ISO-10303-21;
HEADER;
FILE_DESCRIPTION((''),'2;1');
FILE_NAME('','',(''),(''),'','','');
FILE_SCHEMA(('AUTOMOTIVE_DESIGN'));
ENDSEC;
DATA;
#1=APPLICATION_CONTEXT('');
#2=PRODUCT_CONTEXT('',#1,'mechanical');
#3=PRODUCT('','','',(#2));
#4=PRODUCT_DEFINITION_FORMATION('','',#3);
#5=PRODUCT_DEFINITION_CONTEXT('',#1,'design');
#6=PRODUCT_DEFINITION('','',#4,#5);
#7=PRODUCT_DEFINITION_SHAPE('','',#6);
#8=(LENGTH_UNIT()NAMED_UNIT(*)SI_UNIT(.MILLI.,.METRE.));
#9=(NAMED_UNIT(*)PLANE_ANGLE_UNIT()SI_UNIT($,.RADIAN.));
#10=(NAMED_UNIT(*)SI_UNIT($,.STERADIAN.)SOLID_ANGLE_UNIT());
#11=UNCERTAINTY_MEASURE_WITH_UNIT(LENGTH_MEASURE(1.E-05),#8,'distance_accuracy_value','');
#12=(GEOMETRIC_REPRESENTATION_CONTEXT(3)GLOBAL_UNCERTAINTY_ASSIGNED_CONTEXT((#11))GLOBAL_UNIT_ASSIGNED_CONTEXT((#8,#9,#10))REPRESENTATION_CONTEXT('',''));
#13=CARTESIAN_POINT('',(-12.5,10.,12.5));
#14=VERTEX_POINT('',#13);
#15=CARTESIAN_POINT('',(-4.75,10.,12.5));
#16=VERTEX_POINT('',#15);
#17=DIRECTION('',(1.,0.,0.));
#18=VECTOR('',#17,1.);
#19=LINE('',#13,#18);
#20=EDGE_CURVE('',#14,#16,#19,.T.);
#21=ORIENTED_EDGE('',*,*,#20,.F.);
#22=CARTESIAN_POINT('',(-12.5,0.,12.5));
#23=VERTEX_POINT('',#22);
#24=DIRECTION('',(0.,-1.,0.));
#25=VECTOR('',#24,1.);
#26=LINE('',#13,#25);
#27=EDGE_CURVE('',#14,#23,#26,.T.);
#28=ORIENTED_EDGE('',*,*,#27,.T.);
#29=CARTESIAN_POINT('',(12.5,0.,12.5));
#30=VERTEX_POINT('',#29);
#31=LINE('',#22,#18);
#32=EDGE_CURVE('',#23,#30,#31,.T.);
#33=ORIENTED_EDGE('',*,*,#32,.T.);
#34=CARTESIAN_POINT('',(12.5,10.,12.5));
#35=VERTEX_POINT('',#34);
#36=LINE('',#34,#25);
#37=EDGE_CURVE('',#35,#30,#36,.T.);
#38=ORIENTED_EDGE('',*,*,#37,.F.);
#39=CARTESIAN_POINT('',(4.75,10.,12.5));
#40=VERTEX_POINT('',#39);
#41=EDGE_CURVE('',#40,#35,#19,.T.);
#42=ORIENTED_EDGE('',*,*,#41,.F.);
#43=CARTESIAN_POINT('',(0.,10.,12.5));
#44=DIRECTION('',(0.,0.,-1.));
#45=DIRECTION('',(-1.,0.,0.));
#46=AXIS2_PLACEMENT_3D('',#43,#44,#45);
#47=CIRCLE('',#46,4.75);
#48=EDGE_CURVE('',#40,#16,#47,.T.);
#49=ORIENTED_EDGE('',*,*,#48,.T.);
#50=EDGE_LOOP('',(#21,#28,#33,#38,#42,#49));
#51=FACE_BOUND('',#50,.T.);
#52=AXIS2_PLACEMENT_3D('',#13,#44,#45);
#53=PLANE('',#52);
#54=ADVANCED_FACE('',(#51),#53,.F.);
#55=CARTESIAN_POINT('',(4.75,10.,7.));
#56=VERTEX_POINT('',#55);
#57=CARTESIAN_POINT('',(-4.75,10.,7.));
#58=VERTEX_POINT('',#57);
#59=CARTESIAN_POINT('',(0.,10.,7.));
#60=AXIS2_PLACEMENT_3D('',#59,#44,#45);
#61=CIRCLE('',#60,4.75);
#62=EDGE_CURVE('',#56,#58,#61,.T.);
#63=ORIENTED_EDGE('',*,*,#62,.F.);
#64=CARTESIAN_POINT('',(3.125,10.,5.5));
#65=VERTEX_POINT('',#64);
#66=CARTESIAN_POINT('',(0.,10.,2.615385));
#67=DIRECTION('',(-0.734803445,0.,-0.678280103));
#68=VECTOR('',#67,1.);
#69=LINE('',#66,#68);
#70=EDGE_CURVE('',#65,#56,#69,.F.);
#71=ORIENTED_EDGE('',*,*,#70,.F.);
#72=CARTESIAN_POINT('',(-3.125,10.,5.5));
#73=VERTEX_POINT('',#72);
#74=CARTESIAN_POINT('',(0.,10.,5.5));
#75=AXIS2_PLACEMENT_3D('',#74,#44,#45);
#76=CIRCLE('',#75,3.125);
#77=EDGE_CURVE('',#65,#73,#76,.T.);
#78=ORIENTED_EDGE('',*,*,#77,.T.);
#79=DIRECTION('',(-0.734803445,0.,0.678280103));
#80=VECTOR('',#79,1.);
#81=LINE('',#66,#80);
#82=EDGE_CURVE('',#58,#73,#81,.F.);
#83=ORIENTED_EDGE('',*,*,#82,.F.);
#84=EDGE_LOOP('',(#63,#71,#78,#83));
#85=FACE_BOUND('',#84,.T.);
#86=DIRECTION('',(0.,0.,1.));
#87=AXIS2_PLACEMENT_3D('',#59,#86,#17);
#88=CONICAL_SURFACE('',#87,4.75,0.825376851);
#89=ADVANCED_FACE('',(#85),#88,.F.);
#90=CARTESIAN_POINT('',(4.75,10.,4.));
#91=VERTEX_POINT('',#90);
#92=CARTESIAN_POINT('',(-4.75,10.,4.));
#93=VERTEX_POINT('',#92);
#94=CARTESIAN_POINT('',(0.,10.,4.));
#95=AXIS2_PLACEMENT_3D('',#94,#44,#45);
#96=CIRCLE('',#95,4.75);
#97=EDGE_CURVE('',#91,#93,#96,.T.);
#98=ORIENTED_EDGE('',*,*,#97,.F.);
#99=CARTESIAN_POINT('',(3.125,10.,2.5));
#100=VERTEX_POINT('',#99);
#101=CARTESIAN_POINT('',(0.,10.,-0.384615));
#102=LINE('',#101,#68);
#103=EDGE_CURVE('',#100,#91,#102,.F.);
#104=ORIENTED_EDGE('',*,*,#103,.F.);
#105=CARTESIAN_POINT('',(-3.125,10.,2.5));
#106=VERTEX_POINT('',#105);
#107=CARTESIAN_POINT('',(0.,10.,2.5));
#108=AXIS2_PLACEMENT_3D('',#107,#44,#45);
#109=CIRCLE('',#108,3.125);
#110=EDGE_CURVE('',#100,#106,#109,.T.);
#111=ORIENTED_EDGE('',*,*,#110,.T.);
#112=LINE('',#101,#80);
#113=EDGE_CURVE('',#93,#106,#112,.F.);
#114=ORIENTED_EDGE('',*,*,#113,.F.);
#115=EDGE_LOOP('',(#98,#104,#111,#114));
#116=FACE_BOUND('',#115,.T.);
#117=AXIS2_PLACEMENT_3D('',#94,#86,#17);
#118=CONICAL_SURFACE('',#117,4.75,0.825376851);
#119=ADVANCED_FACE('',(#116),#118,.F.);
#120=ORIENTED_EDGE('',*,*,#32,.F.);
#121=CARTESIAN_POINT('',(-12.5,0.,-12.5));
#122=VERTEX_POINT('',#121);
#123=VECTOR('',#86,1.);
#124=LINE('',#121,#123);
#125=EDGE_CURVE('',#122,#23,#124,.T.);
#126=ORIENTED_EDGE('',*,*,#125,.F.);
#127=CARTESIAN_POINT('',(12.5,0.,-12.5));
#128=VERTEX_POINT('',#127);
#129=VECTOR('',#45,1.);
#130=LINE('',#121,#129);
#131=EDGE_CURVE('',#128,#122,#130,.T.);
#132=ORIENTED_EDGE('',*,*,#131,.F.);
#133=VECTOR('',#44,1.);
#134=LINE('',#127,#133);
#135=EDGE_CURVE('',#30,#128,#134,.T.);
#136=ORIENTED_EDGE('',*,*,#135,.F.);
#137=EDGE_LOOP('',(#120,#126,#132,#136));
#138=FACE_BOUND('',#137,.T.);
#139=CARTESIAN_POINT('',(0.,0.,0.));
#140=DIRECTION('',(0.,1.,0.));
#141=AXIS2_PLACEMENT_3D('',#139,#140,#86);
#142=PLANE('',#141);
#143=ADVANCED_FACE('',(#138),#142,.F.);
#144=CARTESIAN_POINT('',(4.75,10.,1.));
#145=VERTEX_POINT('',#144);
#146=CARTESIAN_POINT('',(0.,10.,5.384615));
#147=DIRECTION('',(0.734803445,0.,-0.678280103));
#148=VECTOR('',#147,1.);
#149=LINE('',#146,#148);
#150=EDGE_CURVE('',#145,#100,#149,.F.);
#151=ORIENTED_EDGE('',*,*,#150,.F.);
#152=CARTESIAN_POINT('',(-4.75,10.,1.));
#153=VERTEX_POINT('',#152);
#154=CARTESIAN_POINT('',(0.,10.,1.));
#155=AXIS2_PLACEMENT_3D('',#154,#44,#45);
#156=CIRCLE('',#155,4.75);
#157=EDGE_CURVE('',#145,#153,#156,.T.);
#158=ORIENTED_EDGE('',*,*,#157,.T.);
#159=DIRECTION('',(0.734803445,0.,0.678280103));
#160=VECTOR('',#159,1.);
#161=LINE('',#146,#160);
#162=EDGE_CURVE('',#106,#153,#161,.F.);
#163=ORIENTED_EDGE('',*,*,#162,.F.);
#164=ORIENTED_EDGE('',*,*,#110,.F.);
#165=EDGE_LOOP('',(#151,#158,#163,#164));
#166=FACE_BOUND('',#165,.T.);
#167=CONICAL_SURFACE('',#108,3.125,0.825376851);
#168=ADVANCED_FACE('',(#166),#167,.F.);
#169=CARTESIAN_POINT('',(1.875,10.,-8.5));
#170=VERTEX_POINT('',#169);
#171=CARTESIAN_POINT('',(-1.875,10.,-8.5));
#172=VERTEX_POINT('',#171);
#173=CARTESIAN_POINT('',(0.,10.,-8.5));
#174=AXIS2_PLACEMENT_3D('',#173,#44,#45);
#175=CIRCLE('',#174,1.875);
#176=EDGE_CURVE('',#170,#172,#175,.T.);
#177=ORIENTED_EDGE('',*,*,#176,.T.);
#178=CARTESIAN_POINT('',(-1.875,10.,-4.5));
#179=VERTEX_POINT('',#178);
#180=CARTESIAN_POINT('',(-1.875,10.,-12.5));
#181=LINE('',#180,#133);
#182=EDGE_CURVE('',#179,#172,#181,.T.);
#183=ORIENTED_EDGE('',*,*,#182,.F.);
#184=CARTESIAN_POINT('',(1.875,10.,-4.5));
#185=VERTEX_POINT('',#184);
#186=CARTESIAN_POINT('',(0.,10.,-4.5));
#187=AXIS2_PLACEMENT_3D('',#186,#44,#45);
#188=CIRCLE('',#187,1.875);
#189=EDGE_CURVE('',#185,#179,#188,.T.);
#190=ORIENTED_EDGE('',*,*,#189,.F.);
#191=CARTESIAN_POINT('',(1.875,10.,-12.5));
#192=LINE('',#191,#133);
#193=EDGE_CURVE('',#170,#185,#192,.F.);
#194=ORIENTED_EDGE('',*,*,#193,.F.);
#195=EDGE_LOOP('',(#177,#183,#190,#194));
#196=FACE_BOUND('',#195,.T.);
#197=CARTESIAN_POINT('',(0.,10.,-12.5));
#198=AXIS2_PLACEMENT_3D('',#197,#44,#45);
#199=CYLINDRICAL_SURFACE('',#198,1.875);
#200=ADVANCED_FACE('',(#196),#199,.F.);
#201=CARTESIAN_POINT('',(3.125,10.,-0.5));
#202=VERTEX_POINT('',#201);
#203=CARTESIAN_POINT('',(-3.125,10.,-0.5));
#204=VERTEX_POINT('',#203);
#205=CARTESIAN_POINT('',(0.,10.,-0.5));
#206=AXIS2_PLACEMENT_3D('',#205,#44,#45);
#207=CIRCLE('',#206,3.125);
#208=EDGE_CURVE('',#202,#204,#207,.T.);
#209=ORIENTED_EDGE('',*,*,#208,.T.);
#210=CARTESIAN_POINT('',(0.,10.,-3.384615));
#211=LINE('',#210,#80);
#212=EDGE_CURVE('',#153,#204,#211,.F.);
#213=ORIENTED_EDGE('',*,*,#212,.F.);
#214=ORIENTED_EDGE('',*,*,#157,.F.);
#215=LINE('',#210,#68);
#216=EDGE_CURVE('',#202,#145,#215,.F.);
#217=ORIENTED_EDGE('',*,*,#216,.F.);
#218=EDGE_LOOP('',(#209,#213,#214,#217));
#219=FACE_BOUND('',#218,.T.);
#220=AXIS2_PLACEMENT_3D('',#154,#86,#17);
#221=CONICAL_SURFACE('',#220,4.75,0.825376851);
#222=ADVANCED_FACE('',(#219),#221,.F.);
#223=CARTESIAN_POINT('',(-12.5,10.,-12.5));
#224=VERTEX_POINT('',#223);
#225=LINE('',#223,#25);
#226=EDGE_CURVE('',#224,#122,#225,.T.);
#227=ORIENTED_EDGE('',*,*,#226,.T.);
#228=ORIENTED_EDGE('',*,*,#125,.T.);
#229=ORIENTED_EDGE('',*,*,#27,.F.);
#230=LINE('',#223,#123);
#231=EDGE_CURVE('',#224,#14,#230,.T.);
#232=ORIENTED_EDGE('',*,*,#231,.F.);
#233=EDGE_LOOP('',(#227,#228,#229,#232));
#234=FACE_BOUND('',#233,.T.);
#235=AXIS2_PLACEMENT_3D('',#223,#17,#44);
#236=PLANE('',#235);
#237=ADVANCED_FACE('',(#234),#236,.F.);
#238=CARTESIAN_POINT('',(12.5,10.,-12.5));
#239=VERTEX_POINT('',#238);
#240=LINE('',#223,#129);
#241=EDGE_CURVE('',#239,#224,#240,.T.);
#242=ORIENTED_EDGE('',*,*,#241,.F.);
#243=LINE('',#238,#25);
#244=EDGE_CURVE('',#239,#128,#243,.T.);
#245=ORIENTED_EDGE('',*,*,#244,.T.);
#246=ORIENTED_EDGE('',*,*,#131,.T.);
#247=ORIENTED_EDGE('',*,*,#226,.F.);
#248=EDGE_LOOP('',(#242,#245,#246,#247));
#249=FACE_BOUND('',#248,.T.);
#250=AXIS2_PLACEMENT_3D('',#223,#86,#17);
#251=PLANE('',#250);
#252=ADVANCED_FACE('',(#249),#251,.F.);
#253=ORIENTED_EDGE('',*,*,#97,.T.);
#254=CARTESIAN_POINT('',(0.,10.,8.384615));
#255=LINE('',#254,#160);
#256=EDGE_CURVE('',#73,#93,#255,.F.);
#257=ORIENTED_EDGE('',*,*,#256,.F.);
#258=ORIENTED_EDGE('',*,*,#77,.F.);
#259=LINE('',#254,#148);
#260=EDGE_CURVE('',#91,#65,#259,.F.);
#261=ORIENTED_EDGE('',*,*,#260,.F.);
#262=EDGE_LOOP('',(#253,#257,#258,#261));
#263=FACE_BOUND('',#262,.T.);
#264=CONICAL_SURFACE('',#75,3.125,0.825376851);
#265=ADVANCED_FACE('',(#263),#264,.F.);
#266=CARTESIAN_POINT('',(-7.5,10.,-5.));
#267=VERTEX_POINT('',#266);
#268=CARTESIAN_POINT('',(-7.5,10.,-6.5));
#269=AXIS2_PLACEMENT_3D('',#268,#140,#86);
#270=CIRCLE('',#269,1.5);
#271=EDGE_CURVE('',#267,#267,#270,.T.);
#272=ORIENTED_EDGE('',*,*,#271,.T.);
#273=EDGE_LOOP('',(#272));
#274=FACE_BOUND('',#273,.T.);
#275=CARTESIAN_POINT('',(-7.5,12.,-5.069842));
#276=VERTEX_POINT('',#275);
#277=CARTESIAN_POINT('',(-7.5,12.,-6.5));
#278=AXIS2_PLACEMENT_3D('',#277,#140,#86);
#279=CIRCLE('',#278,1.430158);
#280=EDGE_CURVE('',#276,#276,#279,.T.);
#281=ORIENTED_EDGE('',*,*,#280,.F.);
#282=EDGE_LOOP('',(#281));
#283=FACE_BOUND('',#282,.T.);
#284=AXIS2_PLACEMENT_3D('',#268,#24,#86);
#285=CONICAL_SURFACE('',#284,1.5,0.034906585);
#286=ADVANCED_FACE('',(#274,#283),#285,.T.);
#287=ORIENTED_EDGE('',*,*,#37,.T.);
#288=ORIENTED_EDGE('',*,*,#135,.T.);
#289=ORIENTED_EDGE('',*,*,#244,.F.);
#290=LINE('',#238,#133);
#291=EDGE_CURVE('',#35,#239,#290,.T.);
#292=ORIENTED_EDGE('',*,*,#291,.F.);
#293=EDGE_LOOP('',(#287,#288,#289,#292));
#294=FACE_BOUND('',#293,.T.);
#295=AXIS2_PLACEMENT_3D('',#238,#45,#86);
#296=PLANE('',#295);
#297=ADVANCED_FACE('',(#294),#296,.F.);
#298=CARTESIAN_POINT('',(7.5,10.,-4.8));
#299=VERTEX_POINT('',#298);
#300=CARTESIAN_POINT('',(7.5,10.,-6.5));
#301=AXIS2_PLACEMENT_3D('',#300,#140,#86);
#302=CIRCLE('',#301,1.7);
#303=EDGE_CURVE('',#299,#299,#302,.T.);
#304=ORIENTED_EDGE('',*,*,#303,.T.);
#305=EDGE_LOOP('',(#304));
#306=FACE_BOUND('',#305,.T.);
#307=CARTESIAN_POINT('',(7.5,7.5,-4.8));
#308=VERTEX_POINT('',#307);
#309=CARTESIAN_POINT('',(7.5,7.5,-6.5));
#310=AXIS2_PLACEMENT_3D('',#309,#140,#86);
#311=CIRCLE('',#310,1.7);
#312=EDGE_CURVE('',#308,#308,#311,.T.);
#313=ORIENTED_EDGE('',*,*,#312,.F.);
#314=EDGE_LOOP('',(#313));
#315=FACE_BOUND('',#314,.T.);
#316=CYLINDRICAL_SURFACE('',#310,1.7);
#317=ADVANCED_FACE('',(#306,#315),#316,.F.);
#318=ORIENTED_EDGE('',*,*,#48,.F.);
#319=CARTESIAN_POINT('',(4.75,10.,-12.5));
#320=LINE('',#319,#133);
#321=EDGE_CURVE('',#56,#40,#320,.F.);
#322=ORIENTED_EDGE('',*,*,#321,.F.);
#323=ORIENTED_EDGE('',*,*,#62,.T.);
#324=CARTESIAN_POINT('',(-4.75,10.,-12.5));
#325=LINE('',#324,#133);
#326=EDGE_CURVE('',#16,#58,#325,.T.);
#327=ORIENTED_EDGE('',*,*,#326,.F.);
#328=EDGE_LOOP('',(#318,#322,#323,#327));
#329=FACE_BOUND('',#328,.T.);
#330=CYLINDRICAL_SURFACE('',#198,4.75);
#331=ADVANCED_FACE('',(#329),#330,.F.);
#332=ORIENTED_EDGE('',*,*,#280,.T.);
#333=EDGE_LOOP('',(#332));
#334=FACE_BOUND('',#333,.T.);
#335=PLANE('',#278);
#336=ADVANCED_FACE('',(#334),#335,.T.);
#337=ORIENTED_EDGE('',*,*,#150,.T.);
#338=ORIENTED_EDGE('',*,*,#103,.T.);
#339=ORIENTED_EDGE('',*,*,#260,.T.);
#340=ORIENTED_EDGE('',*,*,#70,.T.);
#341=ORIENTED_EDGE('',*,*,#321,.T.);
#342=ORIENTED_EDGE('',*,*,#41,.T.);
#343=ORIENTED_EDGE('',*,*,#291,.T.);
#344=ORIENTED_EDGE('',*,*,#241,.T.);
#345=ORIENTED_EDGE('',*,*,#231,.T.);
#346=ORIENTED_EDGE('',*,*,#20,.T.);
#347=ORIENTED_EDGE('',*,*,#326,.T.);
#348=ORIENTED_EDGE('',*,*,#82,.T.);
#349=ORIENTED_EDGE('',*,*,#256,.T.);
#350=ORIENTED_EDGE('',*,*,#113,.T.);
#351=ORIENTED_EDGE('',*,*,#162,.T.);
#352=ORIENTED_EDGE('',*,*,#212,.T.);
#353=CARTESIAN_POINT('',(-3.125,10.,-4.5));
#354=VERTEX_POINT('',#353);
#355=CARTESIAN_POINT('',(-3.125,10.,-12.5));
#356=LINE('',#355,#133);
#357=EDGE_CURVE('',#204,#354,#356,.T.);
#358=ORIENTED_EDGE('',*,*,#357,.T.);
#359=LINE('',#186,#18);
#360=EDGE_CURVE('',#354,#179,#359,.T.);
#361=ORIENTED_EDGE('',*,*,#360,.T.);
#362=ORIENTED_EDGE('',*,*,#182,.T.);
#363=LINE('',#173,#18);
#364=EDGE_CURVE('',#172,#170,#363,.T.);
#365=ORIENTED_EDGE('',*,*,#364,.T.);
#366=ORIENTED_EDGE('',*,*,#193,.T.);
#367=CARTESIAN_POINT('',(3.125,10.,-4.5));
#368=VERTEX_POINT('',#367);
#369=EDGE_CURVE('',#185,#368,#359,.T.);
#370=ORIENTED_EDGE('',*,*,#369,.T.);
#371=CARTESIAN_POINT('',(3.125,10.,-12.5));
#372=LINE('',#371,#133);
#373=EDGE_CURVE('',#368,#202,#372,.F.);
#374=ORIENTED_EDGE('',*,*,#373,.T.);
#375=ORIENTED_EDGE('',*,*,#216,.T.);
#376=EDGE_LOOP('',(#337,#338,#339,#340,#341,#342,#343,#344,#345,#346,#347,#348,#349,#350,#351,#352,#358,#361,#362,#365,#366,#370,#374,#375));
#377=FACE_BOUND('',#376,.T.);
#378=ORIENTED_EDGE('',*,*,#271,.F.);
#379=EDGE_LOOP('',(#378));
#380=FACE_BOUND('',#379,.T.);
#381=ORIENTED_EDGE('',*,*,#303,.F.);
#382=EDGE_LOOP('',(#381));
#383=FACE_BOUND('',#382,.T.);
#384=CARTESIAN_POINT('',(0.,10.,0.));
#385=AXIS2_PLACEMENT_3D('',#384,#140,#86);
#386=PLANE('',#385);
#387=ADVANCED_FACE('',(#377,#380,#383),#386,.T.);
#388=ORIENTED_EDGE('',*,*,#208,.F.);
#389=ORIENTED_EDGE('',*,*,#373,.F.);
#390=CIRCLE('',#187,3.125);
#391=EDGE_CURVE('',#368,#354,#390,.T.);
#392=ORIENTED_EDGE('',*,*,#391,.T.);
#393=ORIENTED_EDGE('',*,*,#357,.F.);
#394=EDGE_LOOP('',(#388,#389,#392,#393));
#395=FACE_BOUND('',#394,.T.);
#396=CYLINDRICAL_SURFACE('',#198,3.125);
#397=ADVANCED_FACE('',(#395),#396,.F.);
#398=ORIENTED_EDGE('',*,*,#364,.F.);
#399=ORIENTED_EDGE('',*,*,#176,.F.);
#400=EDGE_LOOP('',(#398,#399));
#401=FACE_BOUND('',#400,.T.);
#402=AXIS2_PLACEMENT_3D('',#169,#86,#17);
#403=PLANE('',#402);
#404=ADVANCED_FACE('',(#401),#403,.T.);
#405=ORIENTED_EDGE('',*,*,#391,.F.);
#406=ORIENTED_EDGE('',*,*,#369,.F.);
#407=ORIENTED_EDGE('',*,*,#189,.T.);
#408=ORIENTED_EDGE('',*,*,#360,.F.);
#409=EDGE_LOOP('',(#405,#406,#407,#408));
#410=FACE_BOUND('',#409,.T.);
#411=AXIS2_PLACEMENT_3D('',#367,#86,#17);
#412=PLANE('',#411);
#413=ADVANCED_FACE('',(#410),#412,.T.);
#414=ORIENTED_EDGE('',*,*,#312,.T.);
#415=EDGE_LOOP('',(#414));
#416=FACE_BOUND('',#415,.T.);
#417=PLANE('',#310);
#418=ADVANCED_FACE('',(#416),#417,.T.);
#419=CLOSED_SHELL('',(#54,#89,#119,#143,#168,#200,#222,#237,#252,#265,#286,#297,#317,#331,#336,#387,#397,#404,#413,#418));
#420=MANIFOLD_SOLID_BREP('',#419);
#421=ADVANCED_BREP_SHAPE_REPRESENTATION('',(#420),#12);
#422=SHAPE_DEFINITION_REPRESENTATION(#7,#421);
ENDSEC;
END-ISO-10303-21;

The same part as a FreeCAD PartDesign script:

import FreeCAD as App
import Part
import Sketcher

V = App.Vector
Q = App.Units.Quantity


def add_polygon(sketch, points):
    """Adds a closed chain of lines whose ends are joined by coincident constraints."""
    first, n = sketch.GeometryCount, len(points)
    for a, b in zip(points, points[1:] + points[:1]):
        sketch.addGeometry(Part.LineSegment(App.Vector(*a, 0), App.Vector(*b, 0)), False)
    for i in range(n):
        sketch.addConstraint(Sketcher.Constraint("Coincident", first + i, 2, first + (i + 1) % n, 1))

doc = App.newDocument("Part")
body = doc.addObject("PartDesign::Body", "Body")

# Sketch on XZ plane
sketch1 = doc.addObject("Sketcher::SketchObject", "Sketch")
body.addObject(sketch1)
sketch1.AttachmentSupport = (doc.XZ_Plane, [""])
sketch1.MapMode = "FlatFace"
add_polygon(sketch1, [(-12, -12), (-12, 12), (12, 12), (12, -12)])  # lines 0-3
sketch1.addConstraint([
    Sketcher.Constraint("Vertical", 0),
    Sketcher.Constraint("Horizontal", 1),
    Sketcher.Constraint("Vertical", 2),
    Sketcher.Constraint("Horizontal", 3),
    Sketcher.Constraint("Symmetric", 0, 2, 2, 2, -1, 1),
    Sketcher.Constraint("Equal", 3, 0),
    Sketcher.Constraint("DistanceX", 1, 1, 1, 2, Q("25 mm")),
])
pad1 = doc.addObject("PartDesign::Pad", "Pad")
body.addObject(pad1)
pad1.Profile = sketch1
pad1.Length = 10
pad1.Reversed = True

# Sketch on XZ plane
sketch2 = doc.addObject("Sketcher::SketchObject", "Sketch001")
body.addObject(sketch2)
sketch2.AttachmentSupport = (doc.XZ_Plane, [""])
sketch2.MapMode = "FlatFace"
sketch2.AttachmentOffset = App.Placement(V(0, 0, -10), App.Rotation())
add_polygon(sketch2, [(0, 12.5), (4.8, 12.5), (4.8, 7), (3.1, 5.5), (4.8, 4), (3.1, 2.5), (4.8, 1), (3.1, -0.5), (3.1, -4.5), (1.9, -4.5), (1.9, -8.5), (0, -8.5)])  # lines 0-11
sketch2.addConstraint([
    Sketcher.Constraint("Horizontal", 0),
    Sketcher.Constraint("Vertical", 1),
    Sketcher.Constraint("Vertical", 7),
    Sketcher.Constraint("Horizontal", 8),
    Sketcher.Constraint("Vertical", 9),
    Sketcher.Constraint("Horizontal", 10),
    Sketcher.Constraint("Vertical", 11),
    Sketcher.Constraint("PointOnObject", 10, 2, -2),
    Sketcher.Constraint("Parallel", 2, 4),
    Sketcher.Constraint("Parallel", 3, 5),
    Sketcher.Constraint("Parallel", 4, 6),
    Sketcher.Constraint("Vertical", 1, 2, 3, 2),
    Sketcher.Constraint("Vertical", 2, 2, 4, 2),
    Sketcher.Constraint("Vertical", 3, 2, 5, 2),
    Sketcher.Constraint("Vertical", 4, 2, 6, 2),
    Sketcher.Constraint("Equal", 7, 9),
    Sketcher.Constraint("Equal", 2, 3),
    Sketcher.Constraint("DistanceY", 7, 2, 7, 1, Q("4 mm")),
    Sketcher.Constraint("DistanceY", 11, 1, 11, 2, Q("21 mm")),
    Sketcher.Constraint("DistanceY", 1, 2, 1, 1, Q("5.5 mm")),
    Sketcher.Constraint("DistanceY", -1, 1, 1, 2, Q("7 mm")),
    Sketcher.Constraint("DistanceX", 0, 1, 0, 2, Q("4.75 mm")),
    Sketcher.Constraint("DistanceX", 8, 2, 8, 1, Q("1.25 mm")),
    Sketcher.Constraint("DistanceX", 10, 2, 10, 1, Q("1.875 mm")),
])
groove = doc.addObject("PartDesign::Groove", "Groove")
body.addObject(groove)
groove.Profile = sketch2
groove.ReferenceAxis = (sketch2, ["V_Axis"])
groove.Angle = 360

# Sketch on XZ plane
sketch3 = doc.addObject("Sketcher::SketchObject", "Sketch002")
body.addObject(sketch3)
sketch3.AttachmentSupport = (doc.XZ_Plane, [""])
sketch3.MapMode = "FlatFace"
sketch3.AttachmentOffset = App.Placement(V(0, 0, -10), App.Rotation())
sketch3.addGeometry(Part.Circle(V(-7.5, -6.5, 0), V(0, 0, 1), 1.5), False)
sketch3.addConstraint([
    Sketcher.Constraint("Diameter", 0, Q("3 mm")),
    Sketcher.Constraint("DistanceX", 0, 3, -1, 1, Q("7.5 mm")),
    Sketcher.Constraint("DistanceY", 0, 3, -1, 1, Q("6.5 mm")),
])
pad2 = doc.addObject("PartDesign::Pad", "Pad001")
body.addObject(pad2)
pad2.Profile = sketch3
pad2.Length = 2
pad2.Reversed = True
pad2.TaperAngle = -2

# Sketch on XZ plane
sketch4 = doc.addObject("Sketcher::SketchObject", "Sketch003")
body.addObject(sketch4)
sketch4.AttachmentSupport = (doc.XZ_Plane, [""])
sketch4.MapMode = "FlatFace"
sketch4.AttachmentOffset = App.Placement(V(0, 0, -10), App.Rotation())
sketch4.addGeometry(Part.Circle(V(7.5, -6.5, 0), V(0, 0, 1), 1.7), False)
sketch4.addConstraint([
    Sketcher.Constraint("Diameter", 0, Q("3.4 mm")),
    Sketcher.Constraint("DistanceX", -1, 1, 0, 3, Q("7.5 mm")),
    Sketcher.Constraint("DistanceY", 0, 3, -1, 1, Q("6.5 mm")),
])
pocket1 = doc.addObject("PartDesign::Pocket", "Pocket")
body.addObject(pocket1)
pocket1.Profile = sketch4
pocket1.Length = 2.5
pocket1.Reversed = True

doc.recompute()
